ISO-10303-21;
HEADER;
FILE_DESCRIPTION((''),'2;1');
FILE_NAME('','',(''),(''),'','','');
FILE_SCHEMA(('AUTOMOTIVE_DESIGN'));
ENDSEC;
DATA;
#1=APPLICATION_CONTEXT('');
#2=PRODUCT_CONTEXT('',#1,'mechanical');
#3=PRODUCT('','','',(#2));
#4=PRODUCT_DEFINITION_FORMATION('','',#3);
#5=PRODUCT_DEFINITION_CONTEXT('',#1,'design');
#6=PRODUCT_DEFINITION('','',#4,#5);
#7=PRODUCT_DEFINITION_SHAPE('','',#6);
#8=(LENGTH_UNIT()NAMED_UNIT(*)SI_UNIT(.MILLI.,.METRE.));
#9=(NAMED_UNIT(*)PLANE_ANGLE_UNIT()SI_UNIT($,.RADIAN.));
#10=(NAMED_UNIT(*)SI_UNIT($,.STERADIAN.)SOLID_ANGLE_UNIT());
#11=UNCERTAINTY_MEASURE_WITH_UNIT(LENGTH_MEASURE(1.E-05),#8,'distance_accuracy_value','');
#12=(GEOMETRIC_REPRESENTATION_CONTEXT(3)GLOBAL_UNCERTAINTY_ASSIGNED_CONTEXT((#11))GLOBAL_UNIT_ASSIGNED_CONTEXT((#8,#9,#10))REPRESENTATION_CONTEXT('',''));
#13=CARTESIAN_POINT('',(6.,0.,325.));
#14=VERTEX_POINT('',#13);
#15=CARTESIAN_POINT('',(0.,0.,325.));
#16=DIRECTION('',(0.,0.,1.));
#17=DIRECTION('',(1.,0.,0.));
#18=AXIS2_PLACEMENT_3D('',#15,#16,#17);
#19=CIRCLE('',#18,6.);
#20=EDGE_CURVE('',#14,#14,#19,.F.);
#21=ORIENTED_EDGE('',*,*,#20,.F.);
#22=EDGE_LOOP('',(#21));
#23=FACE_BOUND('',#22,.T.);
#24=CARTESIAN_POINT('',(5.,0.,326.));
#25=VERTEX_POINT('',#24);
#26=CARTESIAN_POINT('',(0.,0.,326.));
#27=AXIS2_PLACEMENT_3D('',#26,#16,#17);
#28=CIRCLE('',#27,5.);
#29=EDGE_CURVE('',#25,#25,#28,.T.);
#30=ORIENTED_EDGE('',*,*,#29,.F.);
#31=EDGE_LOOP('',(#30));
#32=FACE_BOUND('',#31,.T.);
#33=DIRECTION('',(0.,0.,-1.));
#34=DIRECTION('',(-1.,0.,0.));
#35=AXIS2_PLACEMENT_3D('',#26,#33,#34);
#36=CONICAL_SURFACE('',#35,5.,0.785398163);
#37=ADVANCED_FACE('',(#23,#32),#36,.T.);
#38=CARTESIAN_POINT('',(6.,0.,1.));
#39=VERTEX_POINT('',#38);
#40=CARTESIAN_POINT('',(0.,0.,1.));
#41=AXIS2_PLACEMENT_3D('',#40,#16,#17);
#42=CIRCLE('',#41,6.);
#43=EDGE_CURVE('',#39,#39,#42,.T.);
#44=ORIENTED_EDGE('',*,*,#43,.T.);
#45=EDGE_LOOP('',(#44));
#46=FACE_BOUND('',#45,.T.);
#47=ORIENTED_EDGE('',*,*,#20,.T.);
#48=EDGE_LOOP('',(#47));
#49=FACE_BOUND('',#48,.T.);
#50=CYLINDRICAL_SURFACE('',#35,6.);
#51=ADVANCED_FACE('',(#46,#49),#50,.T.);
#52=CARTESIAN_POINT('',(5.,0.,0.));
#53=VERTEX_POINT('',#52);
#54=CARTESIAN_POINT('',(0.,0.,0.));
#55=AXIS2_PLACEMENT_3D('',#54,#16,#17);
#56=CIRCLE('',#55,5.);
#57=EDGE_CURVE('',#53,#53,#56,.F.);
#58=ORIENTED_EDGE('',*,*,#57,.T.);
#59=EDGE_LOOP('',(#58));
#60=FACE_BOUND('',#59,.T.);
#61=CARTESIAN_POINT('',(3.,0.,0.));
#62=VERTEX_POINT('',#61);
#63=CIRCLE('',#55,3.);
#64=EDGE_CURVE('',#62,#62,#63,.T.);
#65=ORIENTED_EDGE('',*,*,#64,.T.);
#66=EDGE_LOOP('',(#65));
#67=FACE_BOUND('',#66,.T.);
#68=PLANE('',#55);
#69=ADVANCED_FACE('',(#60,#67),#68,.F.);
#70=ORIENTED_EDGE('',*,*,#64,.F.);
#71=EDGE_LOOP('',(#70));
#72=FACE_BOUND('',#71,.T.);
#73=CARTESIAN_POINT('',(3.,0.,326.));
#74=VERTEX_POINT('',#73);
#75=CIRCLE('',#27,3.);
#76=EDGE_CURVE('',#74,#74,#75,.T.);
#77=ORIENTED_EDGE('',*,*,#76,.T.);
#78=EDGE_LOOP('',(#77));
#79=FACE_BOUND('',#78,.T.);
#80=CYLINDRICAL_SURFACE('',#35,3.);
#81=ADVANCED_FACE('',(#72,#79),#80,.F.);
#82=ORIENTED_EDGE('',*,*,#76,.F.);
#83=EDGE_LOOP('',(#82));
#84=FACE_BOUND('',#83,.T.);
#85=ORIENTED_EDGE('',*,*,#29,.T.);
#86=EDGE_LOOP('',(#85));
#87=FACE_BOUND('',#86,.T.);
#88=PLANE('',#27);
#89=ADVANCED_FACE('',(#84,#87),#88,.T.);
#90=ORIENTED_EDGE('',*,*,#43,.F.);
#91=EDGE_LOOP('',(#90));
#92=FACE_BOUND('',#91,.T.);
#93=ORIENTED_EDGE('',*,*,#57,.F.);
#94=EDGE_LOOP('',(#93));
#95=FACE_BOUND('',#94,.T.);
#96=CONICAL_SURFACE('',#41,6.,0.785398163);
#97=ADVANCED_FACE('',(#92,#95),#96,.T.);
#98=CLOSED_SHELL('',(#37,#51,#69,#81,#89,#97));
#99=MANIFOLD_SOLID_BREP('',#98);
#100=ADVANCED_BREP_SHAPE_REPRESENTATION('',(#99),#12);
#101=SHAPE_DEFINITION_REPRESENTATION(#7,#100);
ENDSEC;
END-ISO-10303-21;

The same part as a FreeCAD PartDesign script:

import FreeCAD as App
import Part
import Sketcher


def edges_at(feature, points):
    """Names of the edges that pass closest to the given points."""
    edges = feature.Shape.Edges
    near = lambda p: min(range(len(edges)), key=lambda i: edges[i].distToShape(Part.Vertex(*p))[0])
    return sorted({f"Edge{near(p) + 1}" for p in points})

doc = App.newDocument("Part")
body = doc.addObject("PartDesign::Body", "Body")

# Sketch on XY plane
sketch1 = body.newObject("Sketcher::SketchObject", "Sketch")
sketch1.AttachmentSupport = (doc.getObject("XY_Plane"), [""])
sketch1.MapMode = "FlatFace"
sketch1.addGeometry([
    Part.Circle(App.Vector(0, 0, 0), App.Vector(0, 0, 1), 6),
    Part.Circle(App.Vector(0, 0, 0), App.Vector(0, 0, 1), 3),
], False)
sketch1.addConstraint([
    Sketcher.Constraint("Coincident", 0, 3, -1, 1),
    Sketcher.Constraint("Coincident", 1, 3, -1, 1),
    Sketcher.Constraint("Diameter", 0, 12.0),
    Sketcher.Constraint("Diameter", 1, 6.0),
])
pad1 = body.newObject("PartDesign::Pad", "Pad")
pad1.Profile = sketch1
pad1.Length = 326
doc.recompute()

chamfer = body.newObject("PartDesign::Chamfer", "Chamfer")
chamfer.Base = (pad1, edges_at(pad1, [(-6, 0, 0), (-6, 0, 326)]))
chamfer.Size = 1

doc.recompute()
